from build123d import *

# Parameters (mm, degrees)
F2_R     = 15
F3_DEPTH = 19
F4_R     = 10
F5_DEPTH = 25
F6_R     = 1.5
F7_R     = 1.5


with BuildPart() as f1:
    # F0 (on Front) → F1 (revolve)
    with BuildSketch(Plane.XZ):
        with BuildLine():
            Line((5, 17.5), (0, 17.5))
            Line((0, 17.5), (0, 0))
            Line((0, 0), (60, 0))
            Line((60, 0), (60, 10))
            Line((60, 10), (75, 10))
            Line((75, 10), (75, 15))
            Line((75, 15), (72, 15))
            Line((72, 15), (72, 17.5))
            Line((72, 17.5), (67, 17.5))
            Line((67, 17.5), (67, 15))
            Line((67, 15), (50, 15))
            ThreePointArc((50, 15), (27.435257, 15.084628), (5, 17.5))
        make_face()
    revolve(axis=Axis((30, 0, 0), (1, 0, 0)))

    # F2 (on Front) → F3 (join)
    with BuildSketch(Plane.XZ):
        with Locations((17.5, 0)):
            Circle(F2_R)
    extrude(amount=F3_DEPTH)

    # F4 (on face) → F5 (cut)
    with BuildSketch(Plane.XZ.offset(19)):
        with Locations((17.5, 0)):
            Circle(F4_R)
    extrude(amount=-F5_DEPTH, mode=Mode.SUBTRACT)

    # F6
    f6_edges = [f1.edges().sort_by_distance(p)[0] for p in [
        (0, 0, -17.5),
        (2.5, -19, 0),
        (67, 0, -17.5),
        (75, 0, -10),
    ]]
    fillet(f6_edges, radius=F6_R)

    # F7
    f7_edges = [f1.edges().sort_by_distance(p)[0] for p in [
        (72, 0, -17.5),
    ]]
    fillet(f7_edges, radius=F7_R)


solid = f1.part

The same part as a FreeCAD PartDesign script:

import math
import FreeCAD as App
import Part
import Sketcher
from FreeCAD import Vector
Q = App.Units.Quantity


def edges_at(feature, points):
    """Names of the edges that pass closest to the given points."""
    edges = feature.Shape.Edges
    near = lambda p: min(range(len(edges)), key=lambda i: edges[i].distToShape(Part.Vertex(*p))[0])
    return sorted({f"Edge{near(p) + 1}" for p in points})

doc = App.newDocument("Part")
params = doc.addObject("Spreadsheet::Sheet", "Params")
for row, (alias, value) in enumerate([
    ("sketch1_width", "5 mm"),
    ("sketch1_width2", "60 mm"),
    ("sketch1_width3", "15 mm"),
    ("sketch1_width4", "3 mm"),
    ("sketch1_width5", "17 mm"),
    ("revolution_angle", "360 deg"),
    ("sketch2_diameter", "30 mm"),
    ("pad1_length", "19 mm"),
    ("sketch3_diameter", "20 mm"),
    ("pocket1_length", "25 mm"),
    ("fillet_radius", "1.5 mm"),
    ("fillet2_radius", "1.5 mm"),
], start=1):
    params.set(f"A{row}", alias)
    params.set(f"B{row}", "=" + value)
    params.setAlias(f"B{row}", alias)

body = doc.addObject("PartDesign::Body", "Body")

# Sketch on XZ plane
sketch1 = body.newObject("Sketcher::SketchObject", "Sketch")
sketch1.AttachmentSupport = (doc.getObject("XZ_Plane"), [""])
sketch1.MapMode = "FlatFace"
sketch1.addGeometry(Part.LineSegment(Vector(5, 17.5, 0), Vector(0, 17.5, 0)), False)
sketch1.addGeometry(Part.LineSegment(Vector(0, 17.5, 0), Vector(0, 0, 0)), False)
sketch1.addGeometry(Part.LineSegment(Vector(0, 0, 0), Vector(60, 0, 0)), False)
sketch1.addGeometry(Part.LineSegment(Vector(60, 0, 0), Vector(60, 10, 0)), False)
sketch1.addGeometry(Part.LineSegment(Vector(60, 10, 0), Vector(75, 10, 0)), False)
sketch1.addGeometry(Part.LineSegment(Vector(75, 10, 0), Vector(75, 15, 0)), False)
sketch1.addGeometry(Part.LineSegment(Vector(75, 15, 0), Vector(72, 15, 0)), False)
sketch1.addGeometry(Part.LineSegment(Vector(72, 15, 0), Vector(72, 17.5, 0)), False)
sketch1.addGeometry(Part.LineSegment(Vector(72, 17.5, 0), Vector(67, 17.5, 0)), False)
sketch1.addGeometry(Part.LineSegment(Vector(67, 17.5, 0), Vector(67, 15, 0)), False)
sketch1.addGeometry(Part.LineSegment(Vector(67, 15, 0), Vector(50, 15, 0)), False)
sketch1.addGeometry(Part.ArcOfCircle(Part.Circle(Vector(39.534591, 232.872634, 0), Vector(0, 0, 1), 218.12384), math.radians(-99.109722), math.radians(-87.249938)), False)
sketch1.addConstraint(Sketcher.Constraint("Coincident", 0, 2, 1, 1))
sketch1.addConstraint(Sketcher.Constraint("Coincident", 1, 2, 2, 1))
sketch1.addConstraint(Sketcher.Constraint("Coincident", 2, 2, 3, 1))
sketch1.addConstraint(Sketcher.Constraint("Coincident", 3, 2, 4, 1))
sketch1.addConstraint(Sketcher.Constraint("Coincident", 4, 2, 5, 1))
sketch1.addConstraint(Sketcher.Constraint("Coincident", 5, 2, 6, 1))
sketch1.addConstraint(Sketcher.Constraint("Coincident", 6, 2, 7, 1))
sketch1.addConstraint(Sketcher.Constraint("Coincident", 7, 2, 8, 1))
sketch1.addConstraint(Sketcher.Constraint("Coincident", 8, 2, 9, 1))
sketch1.addConstraint(Sketcher.Constraint("Coincident", 9, 2, 10, 1))
sketch1.addConstraint(Sketcher.Constraint("Coincident", 10, 2, 11, 2))
sketch1.addConstraint(Sketcher.Constraint("Coincident", 11, 1, 0, 1))
sketch1.addConstraint(Sketcher.Constraint("Horizontal", 0))
sketch1.addConstraint(Sketcher.Constraint("Vertical", 1))
sketch1.addConstraint(Sketcher.Constraint("Horizontal", 2))
sketch1.addConstraint(Sketcher.Constraint("Vertical", 3))
sketch1.addConstraint(Sketcher.Constraint("Horizontal", 4))
sketch1.addConstraint(Sketcher.Constraint("Vertical", 5))
sketch1.addConstraint(Sketcher.Constraint("Horizontal", 6))
sketch1.addConstraint(Sketcher.Constraint("Vertical", 7))
sketch1.addConstraint(Sketcher.Constraint("Horizontal", 8))
sketch1.addConstraint(Sketcher.Constraint("Vertical", 9))
sketch1.addConstraint(Sketcher.Constraint("Horizontal", 10))
sketch1.addConstraint(Sketcher.Constraint("Coincident", 1, 2, -1, 1))
sketch1.addConstraint(Sketcher.Constraint("Horizontal", 0, 2, 7, 2))
sketch1.addConstraint(Sketcher.Constraint("Horizontal", 6, 2, 9, 2))
sketch1.addConstraint(Sketcher.Constraint("Equal", 0, 8))
sketch1.addConstraint(Sketcher.Constraint("Equal", 8, 5))
sketch1.addConstraint(Sketcher.Constraint("DistanceX", 0, 2, 0, 1, Q("5 mm")))
sketch1.addConstraint(Sketcher.Constraint("DistanceX", 2, 1, 2, 2, Q("60 mm")))
sketch1.addConstraint(Sketcher.Constraint("DistanceX", 4, 1, 4, 2, Q("15 mm")))
sketch1.addConstraint(Sketcher.Constraint("DistanceX", 6, 2, 6, 1, Q("3 mm")))
sketch1.addConstraint(Sketcher.Constraint("DistanceX", 10, 2, 10, 1, Q("17 mm")))
sketch1.addConstraint(Sketcher.Constraint("DistanceY", 3, 1, 3, 2, Q("10 mm")))
sketch1.addConstraint(Sketcher.Constraint("DistanceY", 1, 2, 1, 1, Q("17.5 mm")))
sketch1.addConstraint(Sketcher.Constraint("Radius", 11, Q("218.12384 mm")))
sketch1.setExpression("Constraints[28]", "Params.sketch1_width")
sketch1.setExpression("Constraints[29]", "Params.sketch1_width2")
sketch1.setExpression("Constraints[30]", "Params.sketch1_width3")
sketch1.setExpression("Constraints[31]", "Params.sketch1_width4")
sketch1.setExpression("Constraints[32]", "Params.sketch1_width5")
revolution = body.newObject("PartDesign::Revolution", "Revolution")
revolution.Profile = sketch1
revolution.ReferenceAxis = (sketch1, ["H_Axis"])
revolution.setExpression("Angle", "Params.revolution_angle")

# Sketch on XZ plane
sketch2 = body.newObject("Sketcher::SketchObject", "Sketch001")
sketch2.AttachmentSupport = (doc.getObject("XZ_Plane"), [""])
sketch2.MapMode = "FlatFace"
sketch2.addGeometry(Part.Circle(Vector(17.5, 0, 0), Vector(0, 0, 1), 15), False)
sketch2.addConstraint(Sketcher.Constraint("PointOnObject", 0, 3, -1))
sketch2.addConstraint(Sketcher.Constraint("Diameter", 0, Q("30 mm")))
sketch2.addConstraint(Sketcher.Constraint("DistanceX", -1, 1, 0, 3, Q("17.5 mm")))
sketch2.setExpression("Constraints[1]", "Params.sketch2_diameter")
pad1 = body.newObject("PartDesign::Pad", "Pad")
pad1.Profile = sketch2
pad1.setExpression("Length", "Params.pad1_length")

# Sketch on XZ plane
sketch3 = body.newObject("Sketcher::SketchObject", "Sketch002")
sketch3.AttachmentSupport = (doc.getObject("XZ_Plane"), [""])
sketch3.MapMode = "FlatFace"
sketch3.AttachmentOffset = App.Placement(Vector(0, 0, 19), App.Rotation())
sketch3.addGeometry(Part.Circle(Vector(17.5, 0, 0), Vector(0, 0, 1), 10), False)
sketch3.addConstraint(Sketcher.Constraint("PointOnObject", 0, 3, -1))
sketch3.addConstraint(Sketcher.Constraint("Diameter", 0, Q("20 mm")))
sketch3.addConstraint(Sketcher.Constraint("DistanceX", -1, 1, 0, 3, Q("17.5 mm")))
sketch3.setExpression("Constraints[1]", "Params.sketch3_diameter")
pocket1 = body.newObject("PartDesign::Pocket", "Pocket")
pocket1.Profile = sketch3
pocket1.setExpression("Length", "Params.pocket1_length")
doc.recompute()

fillet = body.newObject("PartDesign::Fillet", "Fillet")
fillet.Base = (pocket1, edges_at(pocket1, [
    (0, 0, -17.5),
    (2.5, -19, 0),
    (67, 0, -17.5),
    (75, 0, -10),
]))
fillet.setExpression("Radius", "Params.fillet_radius")
doc.recompute()

fillet2 = body.newObject("PartDesign::Fillet", "Fillet001")
fillet2.Base = (fillet, edges_at(fillet, [(72, 0, -17.5)]))
fillet2.setExpression("Radius", "Params.fillet2_radius")

doc.recompute()
